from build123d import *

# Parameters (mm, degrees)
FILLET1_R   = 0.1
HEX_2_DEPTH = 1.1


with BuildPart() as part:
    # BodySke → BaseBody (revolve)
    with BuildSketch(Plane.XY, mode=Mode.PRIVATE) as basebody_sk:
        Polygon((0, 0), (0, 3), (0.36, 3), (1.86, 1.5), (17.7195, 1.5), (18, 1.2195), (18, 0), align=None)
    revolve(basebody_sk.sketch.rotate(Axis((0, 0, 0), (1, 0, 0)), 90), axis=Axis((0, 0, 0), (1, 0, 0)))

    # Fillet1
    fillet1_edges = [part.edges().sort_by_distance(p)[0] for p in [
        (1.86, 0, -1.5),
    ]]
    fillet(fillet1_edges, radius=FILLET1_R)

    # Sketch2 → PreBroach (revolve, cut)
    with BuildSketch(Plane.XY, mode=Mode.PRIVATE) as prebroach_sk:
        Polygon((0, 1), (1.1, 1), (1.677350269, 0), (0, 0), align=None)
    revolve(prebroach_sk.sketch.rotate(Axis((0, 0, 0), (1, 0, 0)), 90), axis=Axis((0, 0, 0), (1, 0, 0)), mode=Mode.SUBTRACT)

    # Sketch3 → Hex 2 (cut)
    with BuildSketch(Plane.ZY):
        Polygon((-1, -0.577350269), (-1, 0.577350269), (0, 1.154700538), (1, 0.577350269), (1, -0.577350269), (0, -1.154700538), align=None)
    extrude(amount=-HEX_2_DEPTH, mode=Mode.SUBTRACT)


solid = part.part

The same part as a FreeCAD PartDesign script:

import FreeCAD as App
import Part
import Sketcher
from FreeCAD import Vector
Q = App.Units.Quantity


def edges_at(feature, points):
    """Names of the edges that pass closest to the given points."""
    edges = feature.Shape.Edges
    near = lambda p: min(range(len(edges)), key=lambda i: edges[i].distToShape(Part.Vertex(*p))[0])
    return sorted({f"Edge{near(p) + 1}" for p in points})


def add_polygon(sketch, points):
    """Adds a closed chain of lines whose ends are joined by coincident constraints."""
    first, n = sketch.GeometryCount, len(points)
    for a, b in zip(points, points[1:] + points[:1]):
        sketch.addGeometry(Part.LineSegment(App.Vector(*a, 0), App.Vector(*b, 0)), False)
    for i in range(n):
        sketch.addConstraint(Sketcher.Constraint("Coincident", first + i, 2, first + (i + 1) % n, 1))

doc = App.newDocument("Part")
body = doc.addObject("PartDesign::Body", "Body")

# Sketch on XY plane
sketch1 = body.newObject("Sketcher::SketchObject", "Sketch")
sketch1.AttachmentSupport = (doc.getObject("XY_Plane"), [""])
sketch1.MapMode = "FlatFace"
add_polygon(sketch1, [(0, 3), (0, 0), (18, 0), (18, 1.22), (17.72, 1.5), (1.86, 1.5), (0.36, 3)])  # lines 0-6
sketch1.addConstraint(Sketcher.Constraint("Vertical", 0))
sketch1.addConstraint(Sketcher.Constraint("Horizontal", 1))
sketch1.addConstraint(Sketcher.Constraint("Vertical", 2))
sketch1.addConstraint(Sketcher.Constraint("Horizontal", 4))
sketch1.addConstraint(Sketcher.Constraint("Horizontal", 6))
sketch1.addConstraint(Sketcher.Constraint("Coincident", 0, 2, -1, 1))
sketch1.addConstraint(Sketcher.Constraint("Parallel", 3, 5))
sketch1.addConstraint(Sketcher.Constraint("DistanceX", 1, 1, 1, 2, 18.0))
sketch1.addConstraint(Sketcher.Constraint("DistanceY", 0, 2, 0, 1, 3.0))
sketch1.addConstraint(Sketcher.Constraint("Angle", 3, Q("135 deg")))
sketch1.addConstraint(Sketcher.Constraint("DistanceX", 6, 2, 6, 1, 0.36))
sketch1.addConstraint(Sketcher.Constraint("DistanceY", -1, 1, 3, 2, 1.5))
sketch1.addConstraint(Sketcher.Constraint("DistanceX", 4, 2, 4, 1, 15.8595))
revolution = body.newObject("PartDesign::Revolution", "Revolution")
revolution.Profile = sketch1
revolution.ReferenceAxis = (sketch1, ["H_Axis"])
revolution.Angle = 360
doc.recompute()

fillet = body.newObject("PartDesign::Fillet", "Fillet")
fillet.Base = (revolution, edges_at(revolution, [(1.86, 0, -1.5)]))
fillet.Radius = 0.1

# Sketch on XY plane
sketch2 = body.newObject("Sketcher::SketchObject", "Sketch001")
sketch2.AttachmentSupport = (doc.getObject("XY_Plane"), [""])
sketch2.MapMode = "FlatFace"
add_polygon(sketch2, [(1.1, 1), (0, 1), (0, 0), (1.7, 0)])  # lines 0-3
sketch2.addConstraint(Sketcher.Constraint("Horizontal", 0))
sketch2.addConstraint(Sketcher.Constraint("Vertical", 1))
sketch2.addConstraint(Sketcher.Constraint("Horizontal", 2))
sketch2.addConstraint(Sketcher.Constraint("Coincident", 1, 2, -1, 1))
sketch2.addConstraint(Sketcher.Constraint("DistanceY", 1, 2, 1, 1, 1.0))
sketch2.addConstraint(Sketcher.Constraint("Angle", 3, Q("120 deg")))
sketch2.addConstraint(Sketcher.Constraint("DistanceX", 0, 2, 0, 1, 1.1))
groove = body.newObject("PartDesign::Groove", "Groove")
groove.Profile = sketch2
groove.ReferenceAxis = (sketch2, ["H_Axis"])
groove.Angle = 360

# Sketch on YZ plane
sketch3 = body.newObject("Sketcher::SketchObject", "Sketch002")
sketch3.AttachmentSupport = (doc.getObject("YZ_Plane"), [""])
sketch3.MapMode = "FlatFace"
add_polygon(sketch3, [(0.6, -1), (-0.6, -1), (-1.2, 0), (-0.6, 1), (0.6, 1), (1.2, 0)])  # lines 0-5
sketch3.addConstraint(Sketcher.Constraint("Horizontal", 0))
sketch3.addConstraint(Sketcher.Constraint("Horizontal", 3))
sketch3.addConstraint(Sketcher.Constraint("Symmetric", 0, 2, 3, 2, -1, 1))
sketch3.addConstraint(Sketcher.Constraint("Symmetric", 1, 2, 4, 2, -1, 1))
sketch3.addConstraint(Sketcher.Constraint("PointOnObject", 1, 2, -1))
sketch3.addConstraint(Sketcher.Constraint("Parallel", 2, 5))
sketch3.addConstraint(Sketcher.Constraint("Vertical", 0, 2, 2, 2))
sketch3.addConstraint(Sketcher.Constraint("Angle", 1, Q("120 deg")))
sketch3.addConstraint(Sketcher.Constraint("DistanceY", 0, 2, -1, 1, 1.0))
sketch3.addConstraint(Sketcher.Constraint("DistanceX", 0, 2, 0, 1, 1.154701))
pocket1 = body.newObject("PartDesign::Pocket", "Pocket")
pocket1.Profile = sketch3
pocket1.Length = 1.1
pocket1.Reversed = True

doc.recompute()
